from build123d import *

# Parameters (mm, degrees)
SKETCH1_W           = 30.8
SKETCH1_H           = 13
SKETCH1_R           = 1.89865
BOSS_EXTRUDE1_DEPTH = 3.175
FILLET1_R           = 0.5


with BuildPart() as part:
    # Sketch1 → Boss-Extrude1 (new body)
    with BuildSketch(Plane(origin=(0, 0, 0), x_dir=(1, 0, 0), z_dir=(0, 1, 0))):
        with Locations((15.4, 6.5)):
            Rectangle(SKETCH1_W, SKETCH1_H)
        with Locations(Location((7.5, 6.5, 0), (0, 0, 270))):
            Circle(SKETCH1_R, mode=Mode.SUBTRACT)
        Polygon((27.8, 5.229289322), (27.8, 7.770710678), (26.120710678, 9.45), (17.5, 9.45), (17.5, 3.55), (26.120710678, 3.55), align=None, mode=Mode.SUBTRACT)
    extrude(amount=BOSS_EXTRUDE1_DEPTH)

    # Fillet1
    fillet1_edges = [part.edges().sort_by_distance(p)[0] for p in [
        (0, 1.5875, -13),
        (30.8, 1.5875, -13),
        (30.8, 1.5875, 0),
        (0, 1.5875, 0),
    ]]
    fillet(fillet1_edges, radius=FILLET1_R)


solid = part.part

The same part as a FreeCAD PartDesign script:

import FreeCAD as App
import Part
import Sketcher
from FreeCAD import Vector
Q = App.Units.Quantity


def edges_at(feature, points):
    """Names of the edges that pass closest to the given points."""
    edges = feature.Shape.Edges
    near = lambda p: min(range(len(edges)), key=lambda i: edges[i].distToShape(Part.Vertex(*p))[0])
    return sorted({f"Edge{near(p) + 1}" for p in points})


def add_polygon(sketch, points):
    """Adds a closed chain of lines whose ends are joined by coincident constraints."""
    first, n = sketch.GeometryCount, len(points)
    for a, b in zip(points, points[1:] + points[:1]):
        sketch.addGeometry(Part.LineSegment(App.Vector(*a, 0), App.Vector(*b, 0)), False)
    for i in range(n):
        sketch.addConstraint(Sketcher.Constraint("Coincident", first + i, 2, first + (i + 1) % n, 1))

doc = App.newDocument("Part")
body = doc.addObject("PartDesign::Body", "Body")

sketch1 = body.newObject("Sketcher::SketchObject", "Sketch")
sketch1.AttachmentSupport = (doc.getObject("XZ_Plane"), [""])
sketch1.MapMode = "FlatFace"
add_polygon(sketch1, [(0, -13), (0, 0), (30.8, 0), (30.8, -13)])
sketch1.addGeometry(Part.Circle(Vector(7.5, -6.5, 0), Vector(0, 0, 1), 1.89865), False)
add_polygon(sketch1, [(27.8, -7.770711), (27.8, -5.229289), (26.120711, -3.55), (17.5, -3.55), (17.5, -9.45), (26.120711, -9.45)])
sketch1.addConstraint(Sketcher.Constraint("Vertical", 0))
sketch1.addConstraint(Sketcher.Constraint("Horizontal", 1))
sketch1.addConstraint(Sketcher.Constraint("Vertical", 2))
sketch1.addConstraint(Sketcher.Constraint("Horizontal", 3))
sketch1.addConstraint(Sketcher.Constraint("Vertical", 5))
sketch1.addConstraint(Sketcher.Constraint("Horizontal", 7))
sketch1.addConstraint(Sketcher.Constraint("Vertical", 8))
sketch1.addConstraint(Sketcher.Constraint("Horizontal", 9))
sketch1.addConstraint(Sketcher.Constraint("Coincident", 0, 2, -1, 1))
sketch1.addConstraint(Sketcher.Constraint("Perpendicular", 6, 10))
sketch1.addConstraint(Sketcher.Constraint("Vertical", 6, 2, 9, 2))
sketch1.addConstraint(Sketcher.Constraint("Equal", 6, 10))
sketch1.addConstraint(Sketcher.Constraint("DistanceY", 0, 1, 0, 2, Q("13 mm")))
sketch1.addConstraint(Sketcher.Constraint("DistanceX", 1, 1, 1, 2, Q("30.8 mm")))
sketch1.addConstraint(Sketcher.Constraint("DistanceY", 8, 2, 8, 1, Q("5.9 mm")))
sketch1.addConstraint(Sketcher.Constraint("DistanceX", 5, 2, 1, 2, Q("3 mm")))
sketch1.addConstraint(Sketcher.Constraint("DistanceX", 4, 3, 7, 2, Q("10 mm")))
sketch1.addConstraint(Sketcher.Constraint("Diameter", 4, Q("3.7973 mm")))
sketch1.addConstraint(Sketcher.Constraint("DistanceX", -1, 1, 4, 3, Q("7.5 mm")))
sketch1.addConstraint(Sketcher.Constraint("DistanceY", 4, 3, -1, 1, Q("6.5 mm")))
sketch1.addConstraint(Sketcher.Constraint("DistanceY", 6, 2, -1, 1, Q("3.55 mm")))
sketch1.addConstraint(Sketcher.Constraint("DistanceX", 7, 2, 7, 1, Q("8.620711 mm")))
pad1 = body.newObject("PartDesign::Pad", "Pad")
pad1.Profile = sketch1
pad1.Length = 3.175
pad1.Reversed = True
doc.recompute()

fillet = body.newObject("PartDesign::Fillet", "Fillet")
fillet.Base = (pad1, edges_at(pad1, [
    (0, 1.587, -13),
    (30.8, 1.587, -13),
    (30.8, 1.587, 0),
    (0, 1.587, 0),
]))
fillet.Radius = 0.5

doc.recompute()
